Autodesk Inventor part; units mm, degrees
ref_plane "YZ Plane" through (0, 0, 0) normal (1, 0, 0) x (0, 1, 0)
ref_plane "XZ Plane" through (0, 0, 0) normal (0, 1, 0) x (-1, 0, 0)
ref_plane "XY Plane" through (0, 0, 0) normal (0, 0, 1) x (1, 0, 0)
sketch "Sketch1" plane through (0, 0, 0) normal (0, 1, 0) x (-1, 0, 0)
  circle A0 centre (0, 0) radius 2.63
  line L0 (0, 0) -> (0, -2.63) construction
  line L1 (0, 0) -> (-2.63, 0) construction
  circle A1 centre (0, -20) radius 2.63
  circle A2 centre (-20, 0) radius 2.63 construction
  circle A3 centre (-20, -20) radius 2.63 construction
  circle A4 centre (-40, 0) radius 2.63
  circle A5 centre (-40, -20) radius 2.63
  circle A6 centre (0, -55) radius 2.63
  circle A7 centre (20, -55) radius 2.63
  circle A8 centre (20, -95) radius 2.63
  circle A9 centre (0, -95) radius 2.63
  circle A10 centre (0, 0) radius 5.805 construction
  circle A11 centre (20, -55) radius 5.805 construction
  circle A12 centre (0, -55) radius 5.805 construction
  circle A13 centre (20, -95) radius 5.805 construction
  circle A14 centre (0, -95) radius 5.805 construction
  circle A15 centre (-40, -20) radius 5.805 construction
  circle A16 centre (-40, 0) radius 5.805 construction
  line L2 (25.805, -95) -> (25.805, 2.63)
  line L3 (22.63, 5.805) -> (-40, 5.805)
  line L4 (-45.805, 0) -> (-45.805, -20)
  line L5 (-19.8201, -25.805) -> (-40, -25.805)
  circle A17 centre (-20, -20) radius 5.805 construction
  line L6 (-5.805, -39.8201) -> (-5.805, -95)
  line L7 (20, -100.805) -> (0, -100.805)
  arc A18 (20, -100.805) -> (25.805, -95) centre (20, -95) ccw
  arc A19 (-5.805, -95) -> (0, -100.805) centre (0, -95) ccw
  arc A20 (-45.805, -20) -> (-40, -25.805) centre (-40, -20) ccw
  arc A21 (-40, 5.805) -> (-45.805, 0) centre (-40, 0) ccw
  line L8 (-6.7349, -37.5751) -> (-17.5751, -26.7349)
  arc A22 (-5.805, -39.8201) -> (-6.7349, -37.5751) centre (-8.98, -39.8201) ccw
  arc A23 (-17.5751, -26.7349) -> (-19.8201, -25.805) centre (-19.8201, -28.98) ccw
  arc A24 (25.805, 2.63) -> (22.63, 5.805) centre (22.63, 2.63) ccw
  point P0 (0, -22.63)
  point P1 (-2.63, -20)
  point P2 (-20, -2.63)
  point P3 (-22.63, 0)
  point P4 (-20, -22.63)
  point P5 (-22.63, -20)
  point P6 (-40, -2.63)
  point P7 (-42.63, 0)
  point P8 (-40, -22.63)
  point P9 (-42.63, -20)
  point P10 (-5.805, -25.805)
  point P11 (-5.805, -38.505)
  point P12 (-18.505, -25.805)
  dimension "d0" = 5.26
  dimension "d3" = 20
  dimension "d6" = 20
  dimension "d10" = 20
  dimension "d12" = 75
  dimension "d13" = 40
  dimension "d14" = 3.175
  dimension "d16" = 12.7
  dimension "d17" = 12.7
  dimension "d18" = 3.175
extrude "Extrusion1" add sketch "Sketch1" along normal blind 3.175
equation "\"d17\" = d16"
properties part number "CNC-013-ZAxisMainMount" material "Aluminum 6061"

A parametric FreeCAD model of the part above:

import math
import FreeCAD as App
import Part
import Sketcher
from FreeCAD import Vector
Q = App.Units.Quantity

doc = App.newDocument("Part")
params = doc.addObject("Spreadsheet::Sheet", "Params")
for row, (alias, value) in enumerate([
    ("sketch1_radius", "0.125 in"),
    ("pad1_length", "0.125 in"),
], start=1):
    params.set(f"A{row}", alias)
    params.set(f"B{row}", "=" + value)
    params.setAlias(f"B{row}", alias)

body = doc.addObject("PartDesign::Body", "Body")

# Sketch on XZ plane
sketch1 = body.newObject("Sketcher::SketchObject", "Sketch")
sketch1.AttachmentSupport = (doc.getObject("XZ_Plane"), [""])
sketch1.MapMode = "FlatFace"
sketch1.addGeometry(Part.ArcOfCircle(Part.Circle(Vector(-20, -95, 0), Vector(0, 0, 1), 5.8), math.radians(180), math.radians(270)), False)
sketch1.addGeometry(Part.LineSegment(Vector(-25.8, -95, 0), Vector(-25.8, 2.6, 0)), False)
sketch1.addGeometry(Part.ArcOfCircle(Part.Circle(Vector(-22.6, 2.6, 0), Vector(0, 0, 1), 3.2), math.radians(90), math.radians(180)), False)
sketch1.addGeometry(Part.LineSegment(Vector(-22.6, 5.8, 0), Vector(40, 5.8, 0)), False)
sketch1.addGeometry(Part.ArcOfCircle(Part.Circle(Vector(40, 0, 0), Vector(0, 0, 1), 5.8), math.radians(0), math.radians(90)), False)
sketch1.addGeometry(Part.LineSegment(Vector(45.8, 0, 0), Vector(45.8, -20, 0)), False)
sketch1.addGeometry(Part.ArcOfCircle(Part.Circle(Vector(40, -20, 0), Vector(0, 0, 1), 5.8), math.radians(-90), math.radians(0)), False)
sketch1.addGeometry(Part.LineSegment(Vector(40, -25.8, 0), Vector(19.8, -25.8, 0)), False)
sketch1.addGeometry(Part.ArcOfCircle(Part.Circle(Vector(19.8, -29, 0), Vector(0, 0, 1), 3.2), math.radians(90), math.radians(135)), False)
sketch1.addGeometry(Part.LineSegment(Vector(17.6, -26.7, 0), Vector(6.7, -37.6, 0)), False)
sketch1.addGeometry(Part.ArcOfCircle(Part.Circle(Vector(9, -39.8, 0), Vector(0, 0, 1), 3.2), math.radians(135), math.radians(180)), False)
sketch1.addGeometry(Part.LineSegment(Vector(5.8, -39.8, 0), Vector(5.8, -95, 0)), False)
sketch1.addGeometry(Part.ArcOfCircle(Part.Circle(Vector(0, -95, 0), Vector(0, 0, 1), 5.8), math.radians(-90), math.radians(0)), False)
sketch1.addGeometry(Part.LineSegment(Vector(0, -100.8, 0), Vector(-20, -100.8, 0)), False)
sketch1.addGeometry(Part.Circle(Vector(0, -95, 0), Vector(0, 0, 1), 2.6), False)
sketch1.addGeometry(Part.Circle(Vector(-20, -95, 0), Vector(0, 0, 1), 2.6), False)
sketch1.addGeometry(Part.Circle(Vector(0, -55, 0), Vector(0, 0, 1), 2.6), False)
sketch1.addGeometry(Part.Circle(Vector(-20, -55, 0), Vector(0, 0, 1), 2.6), False)
sketch1.addGeometry(Part.Circle(Vector(40, -20, 0), Vector(0, 0, 1), 2.6), False)
sketch1.addGeometry(Part.Circle(Vector(40, 0, 0), Vector(0, 0, 1), 2.6), False)
sketch1.addGeometry(Part.Circle(Vector(0, -20, 0), Vector(0, 0, 1), 2.6), False)
sketch1.addGeometry(Part.Circle(Vector(0, 0, 0), Vector(0, 0, 1), 2.6), False)
sketch1.addConstraint(Sketcher.Constraint("Tangent", 0, 1, 1, 1))
sketch1.addConstraint(Sketcher.Constraint("Tangent", 1, 2, 2, 2))
sketch1.addConstraint(Sketcher.Constraint("Tangent", 2, 1, 3, 1))
sketch1.addConstraint(Sketcher.Constraint("Tangent", 3, 2, 4, 2))
sketch1.addConstraint(Sketcher.Constraint("Tangent", 4, 1, 5, 1))
sketch1.addConstraint(Sketcher.Constraint("Tangent", 5, 2, 6, 2))
sketch1.addConstraint(Sketcher.Constraint("Tangent", 6, 1, 7, 1))
sketch1.addConstraint(Sketcher.Constraint("Tangent", 7, 2, 8, 1))
sketch1.addConstraint(Sketcher.Constraint("Tangent", 8, 2, 9, 1))
sketch1.addConstraint(Sketcher.Constraint("Tangent", 9, 2, 10, 1))
sketch1.addConstraint(Sketcher.Constraint("Tangent", 10, 2, 11, 1))
sketch1.addConstraint(Sketcher.Constraint("Tangent", 11, 2, 12, 2))
sketch1.addConstraint(Sketcher.Constraint("Tangent", 12, 1, 13, 1))
sketch1.addConstraint(Sketcher.Constraint("Tangent", 13, 2, 0, 2))
sketch1.addConstraint(Sketcher.Constraint("Vertical", 1))
sketch1.addConstraint(Sketcher.Constraint("Horizontal", 3))
sketch1.addConstraint(Sketcher.Constraint("Vertical", 5))
sketch1.addConstraint(Sketcher.Constraint("Horizontal", 7))
sketch1.addConstraint(Sketcher.Constraint("Vertical", 11))
sketch1.addConstraint(Sketcher.Constraint("Horizontal", 13))
sketch1.addConstraint(Sketcher.Constraint("Coincident", 21, 3, -1, 1))
sketch1.addConstraint(Sketcher.Constraint("Coincident", 14, 3, 12, 3))
sketch1.addConstraint(Sketcher.Constraint("Coincident", 15, 3, 0, 3))
sketch1.addConstraint(Sketcher.Constraint("Coincident", 18, 3, 6, 3))
sketch1.addConstraint(Sketcher.Constraint("Coincident", 19, 3, 4, 3))
sketch1.addConstraint(Sketcher.Constraint("Equal", 0, 4))
sketch1.addConstraint(Sketcher.Constraint("Equal", 4, 6))
sketch1.addConstraint(Sketcher.Constraint("Equal", 2, 8))
sketch1.addConstraint(Sketcher.Constraint("Equal", 8, 10))
sketch1.addConstraint(Sketcher.Constraint("Equal", 6, 12))
sketch1.addConstraint(Sketcher.Constraint("Equal", 14, 15))
sketch1.addConstraint(Sketcher.Constraint("Equal", 15, 16))
sketch1.addConstraint(Sketcher.Constraint("Equal", 16, 17))
sketch1.addConstraint(Sketcher.Constraint("Equal", 17, 18))
sketch1.addConstraint(Sketcher.Constraint("Equal", 18, 19))
sketch1.addConstraint(Sketcher.Constraint("Equal", 19, 20))
sketch1.addConstraint(Sketcher.Constraint("Equal", 20, 21))
sketch1.addConstraint(Sketcher.Constraint("PointOnObject", 4, 3, -1))
sketch1.addConstraint(Sketcher.Constraint("PointOnObject", 12, 3, -2))
sketch1.addConstraint(Sketcher.Constraint("PointOnObject", 16, 3, -2))
sketch1.addConstraint(Sketcher.Constraint("PointOnObject", 20, 3, -2))
sketch1.addConstraint(Sketcher.Constraint("Horizontal", 16, 3, 17, 3))
sketch1.addConstraint(Sketcher.Constraint("Horizontal", 18, 3, 20, 3))
sketch1.addConstraint(Sketcher.Constraint("Vertical", 15, 3, 17, 3))
sketch1.addConstraint(Sketcher.Constraint("Equal", 13, 5))
sketch1.addConstraint(Sketcher.Constraint("Radius", 2, Q("0.125 in")))
sketch1.addConstraint(Sketcher.Constraint("Diameter", 14, Q("5.26 mm")))
sketch1.addConstraint(Sketcher.Constraint("DistanceX", 13, 2, 13, 1, Q("0.7874 in")))
sketch1.addConstraint(Sketcher.Constraint("Angle", 9, Q("-135 deg")))
sketch1.addConstraint(Sketcher.Constraint("DistanceX", -1, 1, 4, 3, Q("1.5748 in")))
sketch1.addConstraint(Sketcher.Constraint("DistanceY", 12, 3, 16, 3, Q("1.5748 in")))
sketch1.addConstraint(Sketcher.Constraint("Radius", 0, Q("5.805 mm")))
sketch1.addConstraint(Sketcher.Constraint("DistanceY", 0, 3, 6, 3, Q("75 mm")))
sketch1.addConstraint(Sketcher.Constraint("DistanceX", 7, 2, 7, 1, Q("0.7944882 in")))
sketch1.setExpression("Constraints[45]", "Params.sketch1_radius")
pad1 = body.newObject("PartDesign::Pad", "Pad")
pad1.Profile = sketch1
pad1.setExpression("Length", "Params.pad1_length")
pad1.Reversed = True

doc.recompute()
